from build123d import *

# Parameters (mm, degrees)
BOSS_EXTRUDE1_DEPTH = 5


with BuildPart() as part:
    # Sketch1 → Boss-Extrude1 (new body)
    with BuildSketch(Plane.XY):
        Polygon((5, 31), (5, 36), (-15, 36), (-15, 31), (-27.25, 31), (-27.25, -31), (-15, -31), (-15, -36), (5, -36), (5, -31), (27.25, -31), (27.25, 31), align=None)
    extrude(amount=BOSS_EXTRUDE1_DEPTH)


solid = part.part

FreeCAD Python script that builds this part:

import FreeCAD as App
import Part
import Sketcher
from FreeCAD import Vector


def add_polygon(sketch, points):
    """Adds a closed chain of lines whose ends are joined by coincident constraints."""
    first, n = sketch.GeometryCount, len(points)
    for a, b in zip(points, points[1:] + points[:1]):
        sketch.addGeometry(Part.LineSegment(App.Vector(*a, 0), App.Vector(*b, 0)), False)
    for i in range(n):
        sketch.addConstraint(Sketcher.Constraint("Coincident", first + i, 2, first + (i + 1) % n, 1))

doc = App.newDocument("Part")
body = doc.addObject("PartDesign::Body", "Body")

sketch1 = body.newObject("Sketcher::SketchObject", "Sketch")
sketch1.AttachmentSupport = (doc.getObject("XY_Plane"), [""])
sketch1.MapMode = "FlatFace"
add_polygon(sketch1, [(5, 31), (5, 36), (-15, 36), (-15, 31), (-27, 31), (-27, -31), (-15, -31), (-15, -36), (5, -36), (5, -31), (27, -31), (27, 31)])
sketch1.addConstraint([
    Sketcher.Constraint("Vertical", 0),
    Sketcher.Constraint("Horizontal", 1),
    Sketcher.Constraint("Vertical", 2),
    Sketcher.Constraint("Horizontal", 3),
    Sketcher.Constraint("Vertical", 4),
    Sketcher.Constraint("Horizontal", 5),
    Sketcher.Constraint("Vertical", 6),
    Sketcher.Constraint("Horizontal", 7),
    Sketcher.Constraint("Vertical", 8),
    Sketcher.Constraint("Horizontal", 9),
    Sketcher.Constraint("Vertical", 10),
    Sketcher.Constraint("Horizontal", 11),
    Sketcher.Constraint("Symmetric", 3, 2, 9, 2, -1, 1),
    Sketcher.Constraint("Symmetric", 2, 2, 5, 2, -1),
    Sketcher.Constraint("Symmetric", 0, 2, 7, 2, -1),
    Sketcher.Constraint("Horizontal", 3, 2, 10, 2),
    Sketcher.Constraint("DistanceX", 1, 2, 1, 1, 20.0),
    Sketcher.Constraint("DistanceY", 0, 1, 0, 2, 5.0),
    Sketcher.Constraint("DistanceY", 4, 2, 4, 1, 62.0),
    Sketcher.Constraint("DistanceX", -1, 1, 0, 2, 5.0),
    Sketcher.Constraint("DistanceX", 3, 2, 3, 1, 12.25),
])
pad1 = body.newObject("PartDesign::Pad", "Pad")
pad1.Profile = sketch1
pad1.Length = 5

doc.recompute()
